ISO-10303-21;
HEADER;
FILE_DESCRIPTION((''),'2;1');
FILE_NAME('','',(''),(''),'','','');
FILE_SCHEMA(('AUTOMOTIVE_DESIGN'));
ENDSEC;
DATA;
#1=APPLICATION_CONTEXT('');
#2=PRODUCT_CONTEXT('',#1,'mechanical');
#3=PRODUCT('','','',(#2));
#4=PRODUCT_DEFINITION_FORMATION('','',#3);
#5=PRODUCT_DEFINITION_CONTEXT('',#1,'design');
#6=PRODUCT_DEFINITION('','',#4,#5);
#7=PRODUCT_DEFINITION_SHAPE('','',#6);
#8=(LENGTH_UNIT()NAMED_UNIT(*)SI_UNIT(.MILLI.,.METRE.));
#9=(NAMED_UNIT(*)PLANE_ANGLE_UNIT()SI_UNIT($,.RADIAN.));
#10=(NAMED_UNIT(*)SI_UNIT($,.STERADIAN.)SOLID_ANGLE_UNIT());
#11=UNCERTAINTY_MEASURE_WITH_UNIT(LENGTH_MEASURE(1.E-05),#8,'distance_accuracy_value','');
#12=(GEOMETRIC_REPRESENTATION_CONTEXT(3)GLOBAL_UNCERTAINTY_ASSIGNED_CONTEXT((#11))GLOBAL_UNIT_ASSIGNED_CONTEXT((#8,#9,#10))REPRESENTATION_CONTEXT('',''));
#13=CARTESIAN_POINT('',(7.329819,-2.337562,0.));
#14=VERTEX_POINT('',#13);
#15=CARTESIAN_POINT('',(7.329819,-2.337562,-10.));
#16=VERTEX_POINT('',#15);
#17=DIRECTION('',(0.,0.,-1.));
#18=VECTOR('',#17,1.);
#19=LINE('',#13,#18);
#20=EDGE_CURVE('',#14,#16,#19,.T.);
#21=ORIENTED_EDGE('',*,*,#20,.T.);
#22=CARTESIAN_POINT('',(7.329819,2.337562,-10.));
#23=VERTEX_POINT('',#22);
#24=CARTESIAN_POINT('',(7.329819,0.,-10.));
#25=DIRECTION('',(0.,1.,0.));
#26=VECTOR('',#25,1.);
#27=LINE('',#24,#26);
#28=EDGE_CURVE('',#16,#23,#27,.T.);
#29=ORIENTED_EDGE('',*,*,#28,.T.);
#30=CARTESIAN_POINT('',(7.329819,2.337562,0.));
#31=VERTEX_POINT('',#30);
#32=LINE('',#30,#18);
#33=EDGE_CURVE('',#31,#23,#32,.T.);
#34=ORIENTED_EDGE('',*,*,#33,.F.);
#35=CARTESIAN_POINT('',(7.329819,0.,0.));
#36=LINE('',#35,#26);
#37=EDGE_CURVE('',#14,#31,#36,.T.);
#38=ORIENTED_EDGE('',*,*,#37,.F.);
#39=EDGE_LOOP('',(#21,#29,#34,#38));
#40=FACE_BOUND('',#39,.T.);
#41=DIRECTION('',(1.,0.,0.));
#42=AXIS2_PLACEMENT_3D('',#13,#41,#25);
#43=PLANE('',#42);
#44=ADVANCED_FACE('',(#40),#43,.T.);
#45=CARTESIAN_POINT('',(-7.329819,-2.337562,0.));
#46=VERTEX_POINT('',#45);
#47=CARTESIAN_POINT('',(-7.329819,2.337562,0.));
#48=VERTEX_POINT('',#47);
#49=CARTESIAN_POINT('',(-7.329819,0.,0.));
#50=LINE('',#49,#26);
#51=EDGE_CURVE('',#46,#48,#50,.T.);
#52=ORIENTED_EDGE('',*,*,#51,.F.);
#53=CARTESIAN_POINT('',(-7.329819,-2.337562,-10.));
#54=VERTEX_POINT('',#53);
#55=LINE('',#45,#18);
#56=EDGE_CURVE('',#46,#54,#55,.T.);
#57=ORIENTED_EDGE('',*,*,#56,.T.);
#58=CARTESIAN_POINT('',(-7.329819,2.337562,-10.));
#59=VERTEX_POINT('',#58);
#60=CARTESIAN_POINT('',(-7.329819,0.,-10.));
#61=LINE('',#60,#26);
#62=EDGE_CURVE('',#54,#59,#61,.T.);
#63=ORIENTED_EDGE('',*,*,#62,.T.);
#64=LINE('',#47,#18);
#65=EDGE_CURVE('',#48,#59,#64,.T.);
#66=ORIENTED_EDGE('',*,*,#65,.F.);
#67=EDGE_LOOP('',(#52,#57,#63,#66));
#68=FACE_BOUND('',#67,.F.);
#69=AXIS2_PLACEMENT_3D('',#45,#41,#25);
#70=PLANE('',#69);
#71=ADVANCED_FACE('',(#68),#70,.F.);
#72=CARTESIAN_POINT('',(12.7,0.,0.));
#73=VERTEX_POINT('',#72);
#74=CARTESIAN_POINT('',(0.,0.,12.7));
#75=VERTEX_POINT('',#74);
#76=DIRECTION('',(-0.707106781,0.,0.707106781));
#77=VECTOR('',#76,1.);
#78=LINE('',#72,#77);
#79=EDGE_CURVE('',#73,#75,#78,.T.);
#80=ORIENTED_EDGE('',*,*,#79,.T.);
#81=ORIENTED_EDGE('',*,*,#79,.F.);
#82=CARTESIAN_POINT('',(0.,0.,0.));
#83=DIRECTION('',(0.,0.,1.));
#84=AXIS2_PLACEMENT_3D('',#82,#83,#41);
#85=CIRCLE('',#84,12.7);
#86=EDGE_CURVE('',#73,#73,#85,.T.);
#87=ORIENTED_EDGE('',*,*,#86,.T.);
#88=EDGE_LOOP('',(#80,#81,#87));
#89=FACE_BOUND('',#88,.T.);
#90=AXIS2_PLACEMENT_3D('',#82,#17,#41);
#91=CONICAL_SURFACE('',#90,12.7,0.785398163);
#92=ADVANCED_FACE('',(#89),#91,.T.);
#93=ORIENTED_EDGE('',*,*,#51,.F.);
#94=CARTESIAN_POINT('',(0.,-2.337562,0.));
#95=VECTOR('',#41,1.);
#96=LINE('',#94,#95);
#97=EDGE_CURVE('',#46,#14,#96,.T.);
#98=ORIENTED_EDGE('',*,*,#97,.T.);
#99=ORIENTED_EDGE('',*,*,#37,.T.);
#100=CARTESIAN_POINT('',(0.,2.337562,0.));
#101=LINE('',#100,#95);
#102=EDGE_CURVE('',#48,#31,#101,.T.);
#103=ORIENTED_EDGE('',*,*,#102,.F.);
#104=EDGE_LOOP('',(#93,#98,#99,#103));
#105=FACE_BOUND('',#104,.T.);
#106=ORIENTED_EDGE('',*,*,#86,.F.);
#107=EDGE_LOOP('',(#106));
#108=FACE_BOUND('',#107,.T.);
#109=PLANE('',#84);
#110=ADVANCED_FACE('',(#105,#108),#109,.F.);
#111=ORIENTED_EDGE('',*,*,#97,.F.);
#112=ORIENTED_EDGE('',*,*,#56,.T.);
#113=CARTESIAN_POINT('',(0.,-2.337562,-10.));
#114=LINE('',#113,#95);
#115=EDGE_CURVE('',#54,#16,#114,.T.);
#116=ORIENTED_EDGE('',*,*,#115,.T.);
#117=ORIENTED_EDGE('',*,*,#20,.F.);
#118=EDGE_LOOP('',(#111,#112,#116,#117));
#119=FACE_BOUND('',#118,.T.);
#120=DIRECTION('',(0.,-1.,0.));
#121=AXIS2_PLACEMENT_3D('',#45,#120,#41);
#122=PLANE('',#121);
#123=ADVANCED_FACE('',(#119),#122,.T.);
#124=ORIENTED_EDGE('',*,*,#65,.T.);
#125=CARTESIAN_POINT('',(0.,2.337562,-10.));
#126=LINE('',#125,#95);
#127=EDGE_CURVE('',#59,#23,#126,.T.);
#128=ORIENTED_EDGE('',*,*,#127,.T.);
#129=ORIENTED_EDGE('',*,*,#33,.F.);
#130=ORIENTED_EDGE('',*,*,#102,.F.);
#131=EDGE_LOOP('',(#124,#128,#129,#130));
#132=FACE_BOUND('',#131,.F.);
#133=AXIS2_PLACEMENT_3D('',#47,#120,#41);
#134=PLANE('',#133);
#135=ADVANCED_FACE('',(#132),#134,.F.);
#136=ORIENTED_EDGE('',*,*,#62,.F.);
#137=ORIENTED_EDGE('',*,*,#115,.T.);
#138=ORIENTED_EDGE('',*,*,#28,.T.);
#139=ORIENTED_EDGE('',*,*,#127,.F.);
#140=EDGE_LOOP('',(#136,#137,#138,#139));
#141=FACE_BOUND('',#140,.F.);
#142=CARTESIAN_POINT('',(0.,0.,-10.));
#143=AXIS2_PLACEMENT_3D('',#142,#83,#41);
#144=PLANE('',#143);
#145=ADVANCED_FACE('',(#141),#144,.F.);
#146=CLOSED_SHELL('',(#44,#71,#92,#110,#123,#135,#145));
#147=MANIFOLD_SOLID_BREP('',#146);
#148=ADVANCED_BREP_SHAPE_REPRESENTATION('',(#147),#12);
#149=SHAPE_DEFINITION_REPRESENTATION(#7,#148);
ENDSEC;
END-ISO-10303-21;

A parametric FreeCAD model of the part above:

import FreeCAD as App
import Part
import Sketcher
from FreeCAD import Vector
Q = App.Units.Quantity

doc = App.newDocument("Part")
body = doc.addObject("PartDesign::Body", "Body")

# Sketch on XZ plane
sketch1 = doc.addObject("Sketcher::SketchObject", "Sketch")
body.addObject(sketch1)
sketch1.AttachmentSupport = (doc.XZ_Plane, [""])
sketch1.MapMode = "FlatFace"
sketch1.addGeometry(Part.LineSegment(Vector(0, 13, 0), Vector(0, 0, 0)), False)
sketch1.addGeometry(Part.LineSegment(Vector(0, 0, 0), Vector(13, 0, 0)), False)
sketch1.addGeometry(Part.LineSegment(Vector(13, 0, 0), Vector(0, 13, 0)), False)
sketch1.addConstraint(Sketcher.Constraint("Coincident", 0, 2, 1, 1))
sketch1.addConstraint(Sketcher.Constraint("Coincident", 1, 2, 2, 1))
sketch1.addConstraint(Sketcher.Constraint("Coincident", 2, 2, 0, 1))
sketch1.addConstraint(Sketcher.Constraint("Vertical", 0))
sketch1.addConstraint(Sketcher.Constraint("Horizontal", 1))
sketch1.addConstraint(Sketcher.Constraint("Coincident", 0, 2, -1, 1))
sketch1.addConstraint(Sketcher.Constraint("Equal", 1, 0))
sketch1.addConstraint(Sketcher.Constraint("DistanceX", 1, 1, 1, 2, Q("12.7 mm")))
revolution = doc.addObject("PartDesign::Revolution", "Revolution")
body.addObject(revolution)
revolution.Profile = sketch1
revolution.ReferenceAxis = (sketch1, ["V_Axis"])
revolution.Angle = 360

# Sketch on XY plane
sketch2 = doc.addObject("Sketcher::SketchObject", "Sketch001")
body.addObject(sketch2)
sketch2.AttachmentSupport = (doc.XY_Plane, [""])
sketch2.MapMode = "FlatFace"
sketch2.addGeometry(Part.LineSegment(Vector(-7.3, 2.3, 0), Vector(-7.3, -2.3, 0)), False)
sketch2.addGeometry(Part.LineSegment(Vector(-7.3, -2.3, 0), Vector(7.3, -2.3, 0)), False)
sketch2.addGeometry(Part.LineSegment(Vector(7.3, -2.3, 0), Vector(7.3, 2.3, 0)), False)
sketch2.addGeometry(Part.LineSegment(Vector(7.3, 2.3, 0), Vector(-7.3, 2.3, 0)), False)
sketch2.addConstraint(Sketcher.Constraint("Coincident", 0, 2, 1, 1))
sketch2.addConstraint(Sketcher.Constraint("Coincident", 1, 2, 2, 1))
sketch2.addConstraint(Sketcher.Constraint("Coincident", 2, 2, 3, 1))
sketch2.addConstraint(Sketcher.Constraint("Coincident", 3, 2, 0, 1))
sketch2.addConstraint(Sketcher.Constraint("Vertical", 0))
sketch2.addConstraint(Sketcher.Constraint("Horizontal", 1))
sketch2.addConstraint(Sketcher.Constraint("Vertical", 2))
sketch2.addConstraint(Sketcher.Constraint("Horizontal", 3))
sketch2.addConstraint(Sketcher.Constraint("Symmetric", 0, 2, 2, 2, -1, 1))
sketch2.addConstraint(Sketcher.Constraint("DistanceX", 1, 1, 1, 2, Q("14.659638 mm")))
sketch2.addConstraint(Sketcher.Constraint("DistanceY", 0, 2, 0, 1, Q("4.675124 mm")))
pad1 = doc.addObject("PartDesign::Pad", "Pad")
body.addObject(pad1)
pad1.Profile = sketch2
pad1.Length = 10
pad1.Reversed = True

doc.recompute()
